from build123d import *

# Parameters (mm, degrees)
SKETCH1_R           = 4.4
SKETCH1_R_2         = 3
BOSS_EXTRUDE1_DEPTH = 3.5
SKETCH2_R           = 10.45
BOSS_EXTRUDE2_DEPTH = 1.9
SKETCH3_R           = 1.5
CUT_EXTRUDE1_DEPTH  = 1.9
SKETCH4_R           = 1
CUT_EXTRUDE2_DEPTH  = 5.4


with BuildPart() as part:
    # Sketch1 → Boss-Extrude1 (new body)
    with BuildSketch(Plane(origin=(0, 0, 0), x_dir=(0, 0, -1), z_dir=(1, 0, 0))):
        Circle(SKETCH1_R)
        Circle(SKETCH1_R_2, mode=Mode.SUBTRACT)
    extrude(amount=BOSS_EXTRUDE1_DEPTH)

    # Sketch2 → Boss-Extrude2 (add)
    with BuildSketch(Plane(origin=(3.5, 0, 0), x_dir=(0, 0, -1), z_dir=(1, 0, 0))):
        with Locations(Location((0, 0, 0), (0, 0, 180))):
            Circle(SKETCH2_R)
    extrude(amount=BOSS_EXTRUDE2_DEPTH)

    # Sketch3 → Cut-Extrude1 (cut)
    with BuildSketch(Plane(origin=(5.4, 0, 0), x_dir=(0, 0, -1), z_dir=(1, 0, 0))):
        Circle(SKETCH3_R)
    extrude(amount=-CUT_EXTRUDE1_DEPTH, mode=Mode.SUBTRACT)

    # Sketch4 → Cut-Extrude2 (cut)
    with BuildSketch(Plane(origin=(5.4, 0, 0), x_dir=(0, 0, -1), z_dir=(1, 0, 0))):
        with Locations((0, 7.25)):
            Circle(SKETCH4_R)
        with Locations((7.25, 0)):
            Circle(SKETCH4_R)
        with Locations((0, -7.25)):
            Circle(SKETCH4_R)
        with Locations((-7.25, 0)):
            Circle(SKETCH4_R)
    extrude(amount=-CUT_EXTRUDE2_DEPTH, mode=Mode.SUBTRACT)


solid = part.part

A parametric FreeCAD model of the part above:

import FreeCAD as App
import Part
import Sketcher

V = App.Vector

doc = App.newDocument("Part")
body = doc.addObject("PartDesign::Body", "Body")

# Sketch on YZ plane
sketch1 = doc.addObject("Sketcher::SketchObject", "Sketch")
body.addObject(sketch1)
sketch1.AttachmentSupport = (doc.YZ_Plane, [""])
sketch1.MapMode = "FlatFace"
sketch1.addGeometry([
    Part.Circle(V(0, 0, 0), V(0, 0, 1), 4.4),
    Part.Circle(V(0, 0, 0), V(0, 0, 1), 3),
], False)
sketch1.addConstraint([
    Sketcher.Constraint("Coincident", 0, 3, -1, 1),
    Sketcher.Constraint("Coincident", 1, 3, -1, 1),
    Sketcher.Constraint("Diameter", 1, 6.0),
    Sketcher.Constraint("Diameter", 0, 8.8),
])
pad1 = doc.addObject("PartDesign::Pad", "Pad")
body.addObject(pad1)
pad1.Profile = sketch1
pad1.Length = 3.5

# Sketch on YZ plane
sketch2 = doc.addObject("Sketcher::SketchObject", "Sketch001")
body.addObject(sketch2)
sketch2.AttachmentSupport = (doc.YZ_Plane, [""])
sketch2.MapMode = "FlatFace"
sketch2.AttachmentOffset = App.Placement(V(0, 0, 3.5), App.Rotation())
sketch2.addGeometry(Part.Circle(V(0, 0, 0), V(0, 0, 1), 10), False)
sketch2.addConstraint([
    Sketcher.Constraint("Coincident", 0, 3, -1, 1),
    Sketcher.Constraint("Diameter", 0, 20.9),
])
pad2 = doc.addObject("PartDesign::Pad", "Pad001")
body.addObject(pad2)
pad2.Profile = sketch2
pad2.Length = 1.9

# Sketch on YZ plane
sketch3 = doc.addObject("Sketcher::SketchObject", "Sketch002")
body.addObject(sketch3)
sketch3.AttachmentSupport = (doc.YZ_Plane, [""])
sketch3.MapMode = "FlatFace"
sketch3.AttachmentOffset = App.Placement(V(0, 0, 5.4), App.Rotation())
sketch3.addGeometry(Part.Circle(V(0, 0, 0), V(0, 0, 1), 1.5), False)
sketch3.addConstraint([
    Sketcher.Constraint("Coincident", 0, 3, -1, 1),
    Sketcher.Constraint("Diameter", 0, 3.0),
])
pocket1 = doc.addObject("PartDesign::Pocket", "Pocket")
body.addObject(pocket1)
pocket1.Profile = sketch3
pocket1.Length = 1.9

# Sketch on YZ plane
sketch4 = doc.addObject("Sketcher::SketchObject", "Sketch003")
body.addObject(sketch4)
sketch4.AttachmentSupport = (doc.YZ_Plane, [""])
sketch4.MapMode = "FlatFace"
sketch4.AttachmentOffset = App.Placement(V(0, 0, 5.4), App.Rotation())
sketch4.addGeometry([
    Part.Circle(V(7.2, 0, 0), V(0, 0, 1), 1),
    Part.Circle(V(0, -7.2, 0), V(0, 0, 1), 1),
    Part.Circle(V(-7.2, 0, 0), V(0, 0, 1), 1),
    Part.Circle(V(0, 7.2, 0), V(0, 0, 1), 1),
], False)
sketch4.addConstraint([
    Sketcher.Constraint("Equal", 0, 1),
    Sketcher.Constraint("Equal", 1, 2),
    Sketcher.Constraint("Equal", 2, 3),
    Sketcher.Constraint("Symmetric", 0, 3, 2, 3, -1, 1),
    Sketcher.Constraint("Symmetric", 1, 3, 3, 3, -1, 1),
    Sketcher.Constraint("PointOnObject", 0, 3, -1),
    Sketcher.Constraint("PointOnObject", 1, 3, -2),
    Sketcher.Constraint("Diameter", 0, 2.0),
    Sketcher.Constraint("DistanceX", 2, 3, 0, 3, 14.5),
    Sketcher.Constraint("DistanceY", 1, 3, 3, 3, 14.5),
])
pocket2 = doc.addObject("PartDesign::Pocket", "Pocket001")
body.addObject(pocket2)
pocket2.Profile = sketch4
pocket2.Length = 5.4

doc.recompute()
